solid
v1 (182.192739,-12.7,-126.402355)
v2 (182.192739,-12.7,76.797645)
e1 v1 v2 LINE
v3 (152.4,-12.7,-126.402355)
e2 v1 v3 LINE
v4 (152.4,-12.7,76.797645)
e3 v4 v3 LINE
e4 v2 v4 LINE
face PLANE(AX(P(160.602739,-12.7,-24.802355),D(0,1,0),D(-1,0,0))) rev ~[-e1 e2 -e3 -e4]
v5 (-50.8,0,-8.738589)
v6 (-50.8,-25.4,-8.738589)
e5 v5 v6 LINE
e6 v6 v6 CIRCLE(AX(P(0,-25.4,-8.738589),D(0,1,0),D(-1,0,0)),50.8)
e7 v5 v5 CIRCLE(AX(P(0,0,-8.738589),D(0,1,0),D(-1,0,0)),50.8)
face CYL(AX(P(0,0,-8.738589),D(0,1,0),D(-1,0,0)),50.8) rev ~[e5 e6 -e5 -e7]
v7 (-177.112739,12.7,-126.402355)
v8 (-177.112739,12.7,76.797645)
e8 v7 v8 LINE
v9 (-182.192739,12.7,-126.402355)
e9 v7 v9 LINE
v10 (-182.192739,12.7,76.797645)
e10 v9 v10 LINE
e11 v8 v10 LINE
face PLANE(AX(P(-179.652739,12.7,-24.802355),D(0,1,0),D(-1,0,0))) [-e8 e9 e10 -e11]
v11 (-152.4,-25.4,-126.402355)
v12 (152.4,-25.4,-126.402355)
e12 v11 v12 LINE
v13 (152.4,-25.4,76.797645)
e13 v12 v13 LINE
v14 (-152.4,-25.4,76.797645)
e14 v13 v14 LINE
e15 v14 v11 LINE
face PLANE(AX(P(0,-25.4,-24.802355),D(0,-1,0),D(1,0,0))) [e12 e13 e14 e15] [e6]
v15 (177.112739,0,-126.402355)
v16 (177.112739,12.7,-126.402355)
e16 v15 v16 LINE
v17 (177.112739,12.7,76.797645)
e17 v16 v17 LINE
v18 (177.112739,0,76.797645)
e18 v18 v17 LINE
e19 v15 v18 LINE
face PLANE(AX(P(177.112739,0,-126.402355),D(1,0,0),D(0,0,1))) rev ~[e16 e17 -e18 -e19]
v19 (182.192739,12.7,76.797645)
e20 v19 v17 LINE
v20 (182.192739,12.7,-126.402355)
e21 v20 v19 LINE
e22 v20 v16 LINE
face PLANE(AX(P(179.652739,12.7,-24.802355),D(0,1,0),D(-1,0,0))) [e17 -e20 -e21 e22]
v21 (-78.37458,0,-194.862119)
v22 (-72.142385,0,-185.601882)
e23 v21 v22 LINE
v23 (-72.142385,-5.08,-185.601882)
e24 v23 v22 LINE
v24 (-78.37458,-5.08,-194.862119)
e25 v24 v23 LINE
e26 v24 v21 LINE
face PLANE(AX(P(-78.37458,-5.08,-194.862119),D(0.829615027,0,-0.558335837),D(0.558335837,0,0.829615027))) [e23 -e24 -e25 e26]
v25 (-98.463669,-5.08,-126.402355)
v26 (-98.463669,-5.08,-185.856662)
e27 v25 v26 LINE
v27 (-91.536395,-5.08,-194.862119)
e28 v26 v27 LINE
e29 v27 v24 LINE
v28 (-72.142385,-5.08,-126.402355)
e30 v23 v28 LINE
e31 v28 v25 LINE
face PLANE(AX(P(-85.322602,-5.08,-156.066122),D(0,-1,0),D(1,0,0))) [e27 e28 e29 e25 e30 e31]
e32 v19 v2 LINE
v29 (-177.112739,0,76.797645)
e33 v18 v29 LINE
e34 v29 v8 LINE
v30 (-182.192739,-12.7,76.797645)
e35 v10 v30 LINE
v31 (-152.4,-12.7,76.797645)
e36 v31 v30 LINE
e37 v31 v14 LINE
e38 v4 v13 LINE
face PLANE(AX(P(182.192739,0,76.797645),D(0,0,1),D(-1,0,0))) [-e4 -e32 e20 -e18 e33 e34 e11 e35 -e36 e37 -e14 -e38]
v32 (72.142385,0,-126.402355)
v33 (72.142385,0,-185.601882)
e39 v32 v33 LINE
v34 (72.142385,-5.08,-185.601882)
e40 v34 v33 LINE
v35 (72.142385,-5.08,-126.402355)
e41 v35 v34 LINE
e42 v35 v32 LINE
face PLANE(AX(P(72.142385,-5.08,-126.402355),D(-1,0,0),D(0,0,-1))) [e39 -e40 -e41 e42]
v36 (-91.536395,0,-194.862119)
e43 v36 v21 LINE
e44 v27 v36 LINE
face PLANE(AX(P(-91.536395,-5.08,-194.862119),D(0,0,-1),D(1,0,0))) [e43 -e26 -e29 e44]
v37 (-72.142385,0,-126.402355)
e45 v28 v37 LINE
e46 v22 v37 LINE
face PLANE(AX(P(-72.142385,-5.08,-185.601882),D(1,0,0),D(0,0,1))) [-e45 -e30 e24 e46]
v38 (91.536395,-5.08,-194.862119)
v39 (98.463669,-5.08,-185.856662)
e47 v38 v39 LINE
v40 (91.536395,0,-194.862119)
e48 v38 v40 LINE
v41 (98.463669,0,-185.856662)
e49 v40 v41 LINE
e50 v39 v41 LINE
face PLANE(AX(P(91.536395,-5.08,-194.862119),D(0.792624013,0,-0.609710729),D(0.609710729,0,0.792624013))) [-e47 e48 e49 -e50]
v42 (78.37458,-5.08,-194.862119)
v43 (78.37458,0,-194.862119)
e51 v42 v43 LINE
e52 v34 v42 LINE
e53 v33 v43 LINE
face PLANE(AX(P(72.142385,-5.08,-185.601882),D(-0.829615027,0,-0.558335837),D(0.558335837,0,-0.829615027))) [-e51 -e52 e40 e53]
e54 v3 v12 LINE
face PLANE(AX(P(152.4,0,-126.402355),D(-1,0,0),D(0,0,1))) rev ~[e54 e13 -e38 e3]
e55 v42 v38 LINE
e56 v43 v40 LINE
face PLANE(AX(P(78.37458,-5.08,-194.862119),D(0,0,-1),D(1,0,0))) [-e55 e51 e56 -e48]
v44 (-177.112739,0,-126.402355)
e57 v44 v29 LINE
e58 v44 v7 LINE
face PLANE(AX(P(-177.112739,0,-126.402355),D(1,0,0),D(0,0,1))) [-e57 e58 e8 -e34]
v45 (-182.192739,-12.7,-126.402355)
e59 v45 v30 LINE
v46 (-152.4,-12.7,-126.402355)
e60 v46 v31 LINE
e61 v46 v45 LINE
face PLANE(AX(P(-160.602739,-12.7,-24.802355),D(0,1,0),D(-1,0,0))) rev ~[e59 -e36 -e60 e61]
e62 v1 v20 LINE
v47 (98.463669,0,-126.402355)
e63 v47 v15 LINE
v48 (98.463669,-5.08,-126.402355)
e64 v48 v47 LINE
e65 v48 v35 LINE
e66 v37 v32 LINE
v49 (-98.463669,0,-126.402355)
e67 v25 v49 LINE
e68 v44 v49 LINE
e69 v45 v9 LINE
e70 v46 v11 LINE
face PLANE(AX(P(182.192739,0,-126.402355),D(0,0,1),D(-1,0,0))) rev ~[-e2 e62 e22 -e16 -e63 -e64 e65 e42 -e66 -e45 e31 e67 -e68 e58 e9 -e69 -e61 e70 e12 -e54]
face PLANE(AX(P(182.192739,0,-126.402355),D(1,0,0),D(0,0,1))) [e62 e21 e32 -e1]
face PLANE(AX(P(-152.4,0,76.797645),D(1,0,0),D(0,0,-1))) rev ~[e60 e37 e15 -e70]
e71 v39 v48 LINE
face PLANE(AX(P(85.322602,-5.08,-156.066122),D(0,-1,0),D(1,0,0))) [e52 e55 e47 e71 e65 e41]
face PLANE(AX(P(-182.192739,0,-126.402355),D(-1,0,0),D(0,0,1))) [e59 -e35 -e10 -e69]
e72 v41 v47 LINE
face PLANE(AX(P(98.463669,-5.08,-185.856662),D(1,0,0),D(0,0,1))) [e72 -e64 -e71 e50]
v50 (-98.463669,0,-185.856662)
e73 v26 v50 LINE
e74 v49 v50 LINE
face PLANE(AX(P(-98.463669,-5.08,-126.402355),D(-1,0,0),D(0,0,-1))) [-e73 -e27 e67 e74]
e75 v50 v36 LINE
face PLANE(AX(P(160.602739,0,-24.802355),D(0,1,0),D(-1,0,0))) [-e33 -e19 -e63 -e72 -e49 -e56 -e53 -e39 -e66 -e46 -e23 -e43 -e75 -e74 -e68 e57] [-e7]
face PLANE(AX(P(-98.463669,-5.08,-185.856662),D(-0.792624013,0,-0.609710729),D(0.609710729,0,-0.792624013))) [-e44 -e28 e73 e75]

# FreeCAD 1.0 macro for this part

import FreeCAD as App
import Part
import Sketcher

V = App.Vector
Q = App.Units.Quantity


def add_polygon(sketch, points):
    """Adds a closed chain of lines whose ends are joined by coincident constraints."""
    first, n = sketch.GeometryCount, len(points)
    for a, b in zip(points, points[1:] + points[:1]):
        sketch.addGeometry(Part.LineSegment(App.Vector(*a, 0), App.Vector(*b, 0)), False)
    for i in range(n):
        sketch.addConstraint(Sketcher.Constraint("Coincident", first + i, 2, first + (i + 1) % n, 1))

doc = App.newDocument("Part")
body = doc.addObject("PartDesign::Body", "Body")

# Sketch on XZ plane
sketch1 = body.newObject("Sketcher::SketchObject", "Sketch")
sketch1.AttachmentSupport = (doc.getObject("XZ_Plane"), [""])
sketch1.MapMode = "FlatFace"
add_polygon(sketch1, [(-152, 77), (-152, -126), (152, -126), (152, 77)])  # lines 0-3
sketch1.addConstraint([
    Sketcher.Constraint("Vertical", 0),
    Sketcher.Constraint("Horizontal", 1),
    Sketcher.Constraint("Vertical", 2),
    Sketcher.Constraint("Horizontal", 3),
    Sketcher.Constraint("DistanceX", 1, 1, 1, 2, Q("12 in")),
    Sketcher.Constraint("DistanceY", 0, 2, 0, 1, Q("8 in")),
    Sketcher.Constraint("DistanceX", 0, 2, -1, 1, Q("6 in")),
    Sketcher.Constraint("DistanceY", 0, 2, -1, 1, 126.402355),
])
pad1 = body.newObject("PartDesign::Pad", "Pad")
pad1.Profile = sketch1
pad1.Length = Q("1 in")

# Sketch on XZ plane
sketch2 = body.newObject("Sketcher::SketchObject", "Sketch001")
sketch2.AttachmentSupport = (doc.getObject("XZ_Plane"), [""])
sketch2.MapMode = "FlatFace"
sketch2.AttachmentOffset = App.Placement(V(0, 0, 0.2 * 25.4), App.Rotation())
add_polygon(sketch2, [(-72, -126), (-98, -126), (-98, -186), (-92, -195), (-78, -195), (-72, -186)])  # lines 0-5
add_polygon(sketch2, [(72, -126), (72, -186), (78, -195), (92, -195), (98, -186), (98, -126)])  # lines 6-11
sketch2.addConstraint([
    Sketcher.Constraint("Horizontal", 0),
    Sketcher.Constraint("Vertical", 1),
    Sketcher.Constraint("Horizontal", 3),
    Sketcher.Constraint("Vertical", 5),
    Sketcher.Constraint("Vertical", 6),
    Sketcher.Constraint("Horizontal", 8),
    Sketcher.Constraint("Vertical", 10),
    Sketcher.Constraint("Horizontal", 11),
    Sketcher.Constraint("Symmetric", 4, 2, 6, 2, -2),
    Sketcher.Constraint("Symmetric", 3, 2, 7, 2, -2),
    Sketcher.Constraint("Symmetric", 1, 2, 9, 2, -2),
    Sketcher.Constraint("Horizontal", 5, 2, 10, 2),
    Sketcher.Constraint("Equal", 3, 8),
    Sketcher.Constraint("Distance", 4, 11.16209),
    Sketcher.Constraint("DistanceX", 0, 2, 0, 1, 26.321284),
    Sketcher.Constraint("DistanceX", 3, 1, 3, 2, 13.161816),
    Sketcher.Constraint("DistanceY", 1, 2, 1, 1, 59.454307),
    Sketcher.Constraint("DistanceY", 5, 1, 5, 2, 59.199527),
    Sketcher.Constraint("DistanceX", 0, 2, -1, 1, 98.463669),
    Sketcher.Constraint("DistanceY", 1, 2, -1, 1, 185.856662),
    Sketcher.Constraint("DistanceY", 2, 2, -1, 1, 194.862119),
])
pad2 = body.newObject("PartDesign::Pad", "Pad001")
pad2.Profile = sketch2
pad2.Length = Q("0.2 in")
pad2.Reversed = True

# Sketch on XZ plane
sketch3 = body.newObject("Sketcher::SketchObject", "Sketch002")
sketch3.AttachmentSupport = (doc.getObject("XZ_Plane"), [""])
sketch3.MapMode = "FlatFace"
add_polygon(sketch3, [(182, 77), (182, -126), (139, -126), (139, 77)])  # lines 0-3
add_polygon(sketch3, [(-139, 77), (-139, -126), (-182, -126), (-182, 77)])  # lines 4-7
sketch3.addConstraint([
    Sketcher.Constraint("Vertical", 0),
    Sketcher.Constraint("Horizontal", 1),
    Sketcher.Constraint("Vertical", 2),
    Sketcher.Constraint("Horizontal", 3),
    Sketcher.Constraint("Vertical", 4),
    Sketcher.Constraint("Horizontal", 5),
    Sketcher.Constraint("Vertical", 6),
    Sketcher.Constraint("Horizontal", 7),
    Sketcher.Constraint("Symmetric", 1, 2, 4, 2, -2),
    Sketcher.Constraint("Symmetric", 3, 2, 6, 2, -2),
    Sketcher.Constraint("DistanceY", 0, 2, 0, 1, Q("8 in")),
    Sketcher.Constraint("DistanceX", 1, 2, 1, 1, Q("1.7 in")),
    Sketcher.Constraint("DistanceX", -1, 1, 0, 2, 182.192739),
    Sketcher.Constraint("DistanceY", 0, 2, -1, 1, 126.402355),
])
pad3 = body.newObject("PartDesign::Pad", "Pad002")
pad3.Profile = sketch3
pad3.Length = Q("0.5 in")

# Sketch on XZ plane
sketch4 = body.newObject("Sketcher::SketchObject", "Sketch003")
sketch4.AttachmentSupport = (doc.getObject("XZ_Plane"), [""])
sketch4.MapMode = "FlatFace"
add_polygon(sketch4, [(182, 77), (182, -126), (177, -126), (177, 77)])  # lines 0-3
add_polygon(sketch4, [(-177, 77), (-177, -126), (-182, -126), (-182, 77)])  # lines 4-7
sketch4.addConstraint([
    Sketcher.Constraint("Vertical", 0),
    Sketcher.Constraint("Horizontal", 1),
    Sketcher.Constraint("Vertical", 2),
    Sketcher.Constraint("Horizontal", 3),
    Sketcher.Constraint("Vertical", 4),
    Sketcher.Constraint("Horizontal", 5),
    Sketcher.Constraint("Vertical", 6),
    Sketcher.Constraint("Horizontal", 7),
    Sketcher.Constraint("Symmetric", 1, 2, 4, 2, -2),
    Sketcher.Constraint("Symmetric", 3, 2, 6, 2, -2),
    Sketcher.Constraint("DistanceY", 0, 2, 0, 1, Q("8 in")),
    Sketcher.Constraint("DistanceX", 1, 2, 1, 1, Q("0.2 in")),
    Sketcher.Constraint("DistanceX", -1, 1, 0, 2, 182.192739),
    Sketcher.Constraint("DistanceY", 0, 2, -1, 1, 126.402355),
])
pad4 = body.newObject("PartDesign::Pad", "Pad003")
pad4.Profile = sketch4
pad4.Length = Q("0.5 in")
pad4.Reversed = True

# Sketch on XZ plane
sketch5 = body.newObject("Sketcher::SketchObject", "Sketch004")
sketch5.AttachmentSupport = (doc.getObject("XZ_Plane"), [""])
sketch5.MapMode = "FlatFace"
sketch5.addGeometry(Part.Circle(V(0, -9, 0), V(0, 0, 1), 51), False)
sketch5.addConstraint([
    Sketcher.Constraint("PointOnObject", 0, 3, -2),
    Sketcher.Constraint("Diameter", 0, Q("4 in")),
    Sketcher.Constraint("DistanceY", 0, 3, -1, 1, 8.738589),
])
pocket1 = body.newObject("PartDesign::Pocket", "Pocket")
pocket1.Profile = sketch5
pocket1.Length = Q("1 in")
pocket1.Reversed = True

doc.recompute()
